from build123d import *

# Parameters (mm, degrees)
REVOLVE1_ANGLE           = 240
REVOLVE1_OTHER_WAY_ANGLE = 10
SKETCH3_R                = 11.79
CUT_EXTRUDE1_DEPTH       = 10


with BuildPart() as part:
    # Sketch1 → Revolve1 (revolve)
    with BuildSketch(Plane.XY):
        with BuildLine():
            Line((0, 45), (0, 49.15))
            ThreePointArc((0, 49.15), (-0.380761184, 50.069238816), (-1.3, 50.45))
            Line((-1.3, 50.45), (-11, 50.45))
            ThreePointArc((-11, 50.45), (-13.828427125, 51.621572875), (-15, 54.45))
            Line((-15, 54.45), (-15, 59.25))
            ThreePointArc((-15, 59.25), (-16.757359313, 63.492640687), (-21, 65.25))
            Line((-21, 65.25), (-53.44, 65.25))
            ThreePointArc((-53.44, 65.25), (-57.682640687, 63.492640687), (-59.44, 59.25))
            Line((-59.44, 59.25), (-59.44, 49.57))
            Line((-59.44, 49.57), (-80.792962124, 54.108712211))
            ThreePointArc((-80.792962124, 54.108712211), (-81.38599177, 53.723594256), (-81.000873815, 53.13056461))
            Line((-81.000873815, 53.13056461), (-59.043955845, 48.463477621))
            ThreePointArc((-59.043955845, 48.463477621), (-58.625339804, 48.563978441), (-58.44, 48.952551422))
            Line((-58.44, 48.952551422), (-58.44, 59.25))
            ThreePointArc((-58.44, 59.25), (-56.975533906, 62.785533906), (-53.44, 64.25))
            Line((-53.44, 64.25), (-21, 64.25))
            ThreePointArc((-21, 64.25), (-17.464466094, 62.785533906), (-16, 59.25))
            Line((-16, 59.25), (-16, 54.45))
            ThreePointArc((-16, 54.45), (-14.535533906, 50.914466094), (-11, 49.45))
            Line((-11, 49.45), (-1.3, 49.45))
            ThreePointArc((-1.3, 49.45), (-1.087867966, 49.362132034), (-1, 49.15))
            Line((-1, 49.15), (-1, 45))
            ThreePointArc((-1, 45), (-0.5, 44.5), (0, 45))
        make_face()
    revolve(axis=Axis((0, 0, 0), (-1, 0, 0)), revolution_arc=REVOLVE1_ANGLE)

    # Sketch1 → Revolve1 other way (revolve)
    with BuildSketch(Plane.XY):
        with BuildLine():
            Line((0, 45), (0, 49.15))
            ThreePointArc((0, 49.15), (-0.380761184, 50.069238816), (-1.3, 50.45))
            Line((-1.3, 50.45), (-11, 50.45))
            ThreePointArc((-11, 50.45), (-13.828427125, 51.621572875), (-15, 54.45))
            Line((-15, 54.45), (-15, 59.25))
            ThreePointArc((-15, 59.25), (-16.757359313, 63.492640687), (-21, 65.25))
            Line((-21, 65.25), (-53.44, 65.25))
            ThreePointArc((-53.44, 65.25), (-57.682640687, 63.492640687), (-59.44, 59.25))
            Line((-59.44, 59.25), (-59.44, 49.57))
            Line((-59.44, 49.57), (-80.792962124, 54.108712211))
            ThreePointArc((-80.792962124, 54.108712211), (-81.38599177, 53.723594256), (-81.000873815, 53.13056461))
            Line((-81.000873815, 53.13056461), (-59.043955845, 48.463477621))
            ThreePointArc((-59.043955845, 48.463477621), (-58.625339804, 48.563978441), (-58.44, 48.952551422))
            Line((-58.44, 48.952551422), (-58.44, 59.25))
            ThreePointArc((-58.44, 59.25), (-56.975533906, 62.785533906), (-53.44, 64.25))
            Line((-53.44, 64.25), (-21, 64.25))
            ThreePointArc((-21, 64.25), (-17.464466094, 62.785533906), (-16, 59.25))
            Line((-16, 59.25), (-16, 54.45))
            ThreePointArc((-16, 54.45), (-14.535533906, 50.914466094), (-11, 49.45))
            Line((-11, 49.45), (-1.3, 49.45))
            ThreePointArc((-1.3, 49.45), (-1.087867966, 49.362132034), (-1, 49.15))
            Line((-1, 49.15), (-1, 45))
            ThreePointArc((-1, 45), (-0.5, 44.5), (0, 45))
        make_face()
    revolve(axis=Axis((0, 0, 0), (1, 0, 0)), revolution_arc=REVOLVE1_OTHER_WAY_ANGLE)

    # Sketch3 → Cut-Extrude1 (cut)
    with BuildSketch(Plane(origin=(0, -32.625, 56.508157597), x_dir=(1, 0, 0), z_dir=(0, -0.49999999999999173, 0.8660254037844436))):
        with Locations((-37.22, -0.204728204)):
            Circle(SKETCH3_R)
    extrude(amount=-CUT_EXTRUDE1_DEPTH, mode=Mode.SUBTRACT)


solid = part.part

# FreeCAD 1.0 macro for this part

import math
import FreeCAD as App
import Part
import Sketcher

V = App.Vector
Q = App.Units.Quantity

doc = App.newDocument("Part")
body = doc.addObject("PartDesign::Body", "Body")

sketch1 = doc.addObject("Sketcher::SketchObject", "Sketch")
body.addObject(sketch1)
sketch1.AttachmentSupport = (doc.XY_Plane, [""])
sketch1.MapMode = "FlatFace"
sketch1.addGeometry([
    Part.LineSegment(V(0, 45, 0), V(0, 49.15, 0)),
    Part.ArcOfCircle(Part.Circle(V(-1.3, 49.15, 0), V(0, 0, 1), 1.3), math.radians(0), math.radians(90)),
    Part.LineSegment(V(-1.3, 50.45, 0), V(-11, 50.45, 0)),
    Part.ArcOfCircle(Part.Circle(V(-11, 54.45, 0), V(0, 0, 1), 4), math.radians(180), math.radians(270)),
    Part.LineSegment(V(-15, 54.45, 0), V(-15, 59.25, 0)),
    Part.ArcOfCircle(Part.Circle(V(-21, 59.25, 0), V(0, 0, 1), 6), math.radians(0), math.radians(90)),
    Part.LineSegment(V(-21, 65.25, 0), V(-53.44, 65.25, 0)),
    Part.ArcOfCircle(Part.Circle(V(-53.44, 59.25, 0), V(0, 0, 1), 6), math.radians(90), math.radians(180)),
    Part.LineSegment(V(-59.44, 59.25, 0), V(-59.44, 49.57, 0)),
    Part.LineSegment(V(-59.44, 49.57, 0), V(-80.79, 54.11, 0)),
    Part.ArcOfCircle(Part.Circle(V(-80.9, 53.62, 0), V(0, 0, 1), 0.5), math.radians(78), math.radians(258)),
    Part.LineSegment(V(-81, 53.13, 0), V(-59.04, 48.46, 0)),
    Part.ArcOfCircle(Part.Circle(V(-58.94, 48.95, 0), V(0, 0, 1), 0.5), math.radians(-102), math.radians(0)),
    Part.LineSegment(V(-58.44, 48.95, 0), V(-58.44, 59.25, 0)),
    Part.ArcOfCircle(Part.Circle(V(-53.44, 59.25, 0), V(0, 0, 1), 5), math.radians(90), math.radians(180)),
    Part.LineSegment(V(-53.44, 64.25, 0), V(-21, 64.25, 0)),
    Part.ArcOfCircle(Part.Circle(V(-21, 59.25, 0), V(0, 0, 1), 5), math.radians(0), math.radians(90)),
    Part.LineSegment(V(-16, 59.25, 0), V(-16, 54.45, 0)),
    Part.ArcOfCircle(Part.Circle(V(-11, 54.45, 0), V(0, 0, 1), 5), math.radians(180), math.radians(270)),
    Part.LineSegment(V(-11, 49.45, 0), V(-1.3, 49.45, 0)),
    Part.ArcOfCircle(Part.Circle(V(-1.3, 49.15, 0), V(0, 0, 1), 0.3), math.radians(0), math.radians(90)),
    Part.LineSegment(V(-1, 49.15, 0), V(-1, 45, 0)),
    Part.ArcOfCircle(Part.Circle(V(-0.5, 45, 0), V(0, 0, 1), 0.5), math.radians(180), math.radians(360)),
], False)
sketch1.addConstraint([
    Sketcher.Constraint("Tangent", 0, 2, 1, 1),
    Sketcher.Constraint("Tangent", 1, 2, 2, 1),
    Sketcher.Constraint("Tangent", 2, 2, 3, 2),
    Sketcher.Constraint("Tangent", 3, 1, 4, 1),
    Sketcher.Constraint("Tangent", 4, 2, 5, 1),
    Sketcher.Constraint("Tangent", 5, 2, 6, 1),
    Sketcher.Constraint("Tangent", 6, 2, 7, 1),
    Sketcher.Constraint("Tangent", 7, 2, 8, 1),
    Sketcher.Constraint("Coincident", 8, 2, 9, 1),
    Sketcher.Constraint("Tangent", 9, 2, 10, 1),
    Sketcher.Constraint("Tangent", 10, 2, 11, 1),
    Sketcher.Constraint("Tangent", 11, 2, 12, 1),
    Sketcher.Constraint("Tangent", 12, 2, 13, 1),
    Sketcher.Constraint("Tangent", 13, 2, 14, 2),
    Sketcher.Constraint("Tangent", 14, 1, 15, 1),
    Sketcher.Constraint("Tangent", 15, 2, 16, 2),
    Sketcher.Constraint("Tangent", 16, 1, 17, 1),
    Sketcher.Constraint("Tangent", 17, 2, 18, 1),
    Sketcher.Constraint("Tangent", 18, 2, 19, 1),
    Sketcher.Constraint("Tangent", 19, 2, 20, 2),
    Sketcher.Constraint("Tangent", 20, 1, 21, 1),
    Sketcher.Constraint("Tangent", 21, 2, 22, 1),
    Sketcher.Constraint("Tangent", 22, 2, 0, 1),
    Sketcher.Constraint("Vertical", 0),
    Sketcher.Constraint("Horizontal", 2),
    Sketcher.Constraint("Vertical", 4),
    Sketcher.Constraint("Horizontal", 6),
    Sketcher.Constraint("Vertical", 8),
    Sketcher.Constraint("Vertical", 13),
    Sketcher.Constraint("Horizontal", 15),
    Sketcher.Constraint("Vertical", 17),
    Sketcher.Constraint("Horizontal", 19),
    Sketcher.Constraint("Vertical", 21),
    Sketcher.Constraint("Coincident", 14, 3, 7, 3),
    Sketcher.Constraint("Coincident", 16, 3, 5, 3),
    Sketcher.Constraint("Coincident", 18, 3, 3, 3),
    Sketcher.Constraint("Coincident", 20, 3, 1, 3),
    Sketcher.Constraint("Equal", 5, 7),
    Sketcher.Constraint("Equal", 10, 12),
    Sketcher.Constraint("Equal", 16, 18),
    Sketcher.Constraint("Equal", 12, 22),
    Sketcher.Constraint("PointOnObject", 0, 2, -2),
    Sketcher.Constraint("Parallel", 9, 11),
    Sketcher.Constraint("Radius", 3, 4.0),
    Sketcher.Constraint("Radius", 5, 6.0),
    Sketcher.Constraint("Radius", 1, 1.3),
    Sketcher.Constraint("Angle", 9, Q("168 deg")),
    Sketcher.Constraint("DistanceX", 2, 2, 2, 1, 9.7),
    Sketcher.Constraint("DistanceY", 4, 1, 4, 2, 4.8),
    Sketcher.Constraint("DistanceY", -1, 1, 22, 3, 45.0),
    Sketcher.Constraint("DistanceX", 6, 2, 6, 1, 32.44),
    Sketcher.Constraint("DistanceY", 0, 1, 0, 2, 4.15),
    Sketcher.Constraint("DistanceY", 8, 2, 8, 1, 9.68),
    Sketcher.Constraint("Distance", 9, 21.83),
])
revolution = doc.addObject("PartDesign::Revolution", "Revolution")
body.addObject(revolution)
revolution.Profile = sketch1
revolution.ReferenceAxis = (sketch1, ["H_Axis"])
revolution.Angle = 240
revolution.Reversed = True

sketch2 = doc.addObject("Sketcher::SketchObject", "Sketch001")
body.addObject(sketch2)
sketch2.AttachmentSupport = (doc.XY_Plane, [""])
sketch2.MapMode = "FlatFace"
sketch2.addGeometry([
    Part.LineSegment(V(0, 45, 0), V(0, 49.15, 0)),
    Part.ArcOfCircle(Part.Circle(V(-1.3, 49.15, 0), V(0, 0, 1), 1.3), math.radians(0), math.radians(90)),
    Part.LineSegment(V(-1.3, 50.45, 0), V(-11, 50.45, 0)),
    Part.ArcOfCircle(Part.Circle(V(-11, 54.45, 0), V(0, 0, 1), 4), math.radians(180), math.radians(270)),
    Part.LineSegment(V(-15, 54.45, 0), V(-15, 59.25, 0)),
    Part.ArcOfCircle(Part.Circle(V(-21, 59.25, 0), V(0, 0, 1), 6), math.radians(0), math.radians(90)),
    Part.LineSegment(V(-21, 65.25, 0), V(-53.44, 65.25, 0)),
    Part.ArcOfCircle(Part.Circle(V(-53.44, 59.25, 0), V(0, 0, 1), 6), math.radians(90), math.radians(180)),
    Part.LineSegment(V(-59.44, 59.25, 0), V(-59.44, 49.57, 0)),
    Part.LineSegment(V(-59.44, 49.57, 0), V(-80.79, 54.11, 0)),
    Part.ArcOfCircle(Part.Circle(V(-80.9, 53.62, 0), V(0, 0, 1), 0.5), math.radians(78), math.radians(258)),
    Part.LineSegment(V(-81, 53.13, 0), V(-59.04, 48.46, 0)),
    Part.ArcOfCircle(Part.Circle(V(-58.94, 48.95, 0), V(0, 0, 1), 0.5), math.radians(-102), math.radians(0)),
    Part.LineSegment(V(-58.44, 48.95, 0), V(-58.44, 59.25, 0)),
    Part.ArcOfCircle(Part.Circle(V(-53.44, 59.25, 0), V(0, 0, 1), 5), math.radians(90), math.radians(180)),
    Part.LineSegment(V(-53.44, 64.25, 0), V(-21, 64.25, 0)),
    Part.ArcOfCircle(Part.Circle(V(-21, 59.25, 0), V(0, 0, 1), 5), math.radians(0), math.radians(90)),
    Part.LineSegment(V(-16, 59.25, 0), V(-16, 54.45, 0)),
    Part.ArcOfCircle(Part.Circle(V(-11, 54.45, 0), V(0, 0, 1), 5), math.radians(180), math.radians(270)),
    Part.LineSegment(V(-11, 49.45, 0), V(-1.3, 49.45, 0)),
    Part.ArcOfCircle(Part.Circle(V(-1.3, 49.15, 0), V(0, 0, 1), 0.3), math.radians(0), math.radians(90)),
    Part.LineSegment(V(-1, 49.15, 0), V(-1, 45, 0)),
    Part.ArcOfCircle(Part.Circle(V(-0.5, 45, 0), V(0, 0, 1), 0.5), math.radians(180), math.radians(360)),
], False)
sketch2.addConstraint([
    Sketcher.Constraint("Tangent", 0, 2, 1, 1),
    Sketcher.Constraint("Tangent", 1, 2, 2, 1),
    Sketcher.Constraint("Tangent", 2, 2, 3, 2),
    Sketcher.Constraint("Tangent", 3, 1, 4, 1),
    Sketcher.Constraint("Tangent", 4, 2, 5, 1),
    Sketcher.Constraint("Tangent", 5, 2, 6, 1),
    Sketcher.Constraint("Tangent", 6, 2, 7, 1),
    Sketcher.Constraint("Tangent", 7, 2, 8, 1),
    Sketcher.Constraint("Coincident", 8, 2, 9, 1),
    Sketcher.Constraint("Tangent", 9, 2, 10, 1),
    Sketcher.Constraint("Tangent", 10, 2, 11, 1),
    Sketcher.Constraint("Tangent", 11, 2, 12, 1),
    Sketcher.Constraint("Tangent", 12, 2, 13, 1),
    Sketcher.Constraint("Tangent", 13, 2, 14, 2),
    Sketcher.Constraint("Tangent", 14, 1, 15, 1),
    Sketcher.Constraint("Tangent", 15, 2, 16, 2),
    Sketcher.Constraint("Tangent", 16, 1, 17, 1),
    Sketcher.Constraint("Tangent", 17, 2, 18, 1),
    Sketcher.Constraint("Tangent", 18, 2, 19, 1),
    Sketcher.Constraint("Tangent", 19, 2, 20, 2),
    Sketcher.Constraint("Tangent", 20, 1, 21, 1),
    Sketcher.Constraint("Tangent", 21, 2, 22, 1),
    Sketcher.Constraint("Tangent", 22, 2, 0, 1),
    Sketcher.Constraint("Vertical", 0),
    Sketcher.Constraint("Horizontal", 2),
    Sketcher.Constraint("Vertical", 4),
    Sketcher.Constraint("Horizontal", 6),
    Sketcher.Constraint("Vertical", 8),
    Sketcher.Constraint("Vertical", 13),
    Sketcher.Constraint("Horizontal", 15),
    Sketcher.Constraint("Vertical", 17),
    Sketcher.Constraint("Horizontal", 19),
    Sketcher.Constraint("Vertical", 21),
    Sketcher.Constraint("Coincident", 14, 3, 7, 3),
    Sketcher.Constraint("Coincident", 16, 3, 5, 3),
    Sketcher.Constraint("Coincident", 18, 3, 3, 3),
    Sketcher.Constraint("Coincident", 20, 3, 1, 3),
    Sketcher.Constraint("Equal", 5, 7),
    Sketcher.Constraint("Equal", 10, 12),
    Sketcher.Constraint("Equal", 16, 18),
    Sketcher.Constraint("Equal", 12, 22),
    Sketcher.Constraint("PointOnObject", 0, 2, -2),
    Sketcher.Constraint("Parallel", 9, 11),
    Sketcher.Constraint("Radius", 3, 4.0),
    Sketcher.Constraint("Radius", 5, 6.0),
    Sketcher.Constraint("Radius", 1, 1.3),
    Sketcher.Constraint("Angle", 9, Q("168 deg")),
    Sketcher.Constraint("DistanceX", 2, 2, 2, 1, 9.7),
    Sketcher.Constraint("DistanceY", 4, 1, 4, 2, 4.8),
    Sketcher.Constraint("DistanceY", -1, 1, 22, 3, 45.0),
    Sketcher.Constraint("DistanceX", 6, 2, 6, 1, 32.44),
    Sketcher.Constraint("DistanceY", 0, 1, 0, 2, 4.15),
    Sketcher.Constraint("DistanceY", 8, 2, 8, 1, 9.68),
    Sketcher.Constraint("Distance", 9, 21.83),
])
revolution2 = doc.addObject("PartDesign::Revolution", "Revolution001")
body.addObject(revolution2)
revolution2.Profile = sketch2
revolution2.ReferenceAxis = (sketch2, ["H_Axis"])
revolution2.Angle = 10

sketch3 = doc.addObject("Sketcher::SketchObject", "Sketch002")
body.addObject(sketch3)
sketch3.Placement = App.Placement(V(0, -32.625, 56.508158), App.Rotation(V(1, 0, 0), V(0, 0.866025404, 0.5), V(0, -0.5, 0.866025404), "ZXY"))
sketch3.addGeometry(Part.Circle(V(-37, 0, 0), V(0, 0, 1), 12), False)
sketch3.addConstraint([
    Sketcher.Constraint("Diameter", 0, 23.58),
    Sketcher.Constraint("DistanceX", 0, 3, -1, 1, 37.22),
    Sketcher.Constraint("DistanceY", 0, 3, -1, 1, 0.204728),
])
pocket1 = doc.addObject("PartDesign::Pocket", "Pocket")
body.addObject(pocket1)
pocket1.Profile = sketch3
pocket1.Length = 10

doc.recompute()
